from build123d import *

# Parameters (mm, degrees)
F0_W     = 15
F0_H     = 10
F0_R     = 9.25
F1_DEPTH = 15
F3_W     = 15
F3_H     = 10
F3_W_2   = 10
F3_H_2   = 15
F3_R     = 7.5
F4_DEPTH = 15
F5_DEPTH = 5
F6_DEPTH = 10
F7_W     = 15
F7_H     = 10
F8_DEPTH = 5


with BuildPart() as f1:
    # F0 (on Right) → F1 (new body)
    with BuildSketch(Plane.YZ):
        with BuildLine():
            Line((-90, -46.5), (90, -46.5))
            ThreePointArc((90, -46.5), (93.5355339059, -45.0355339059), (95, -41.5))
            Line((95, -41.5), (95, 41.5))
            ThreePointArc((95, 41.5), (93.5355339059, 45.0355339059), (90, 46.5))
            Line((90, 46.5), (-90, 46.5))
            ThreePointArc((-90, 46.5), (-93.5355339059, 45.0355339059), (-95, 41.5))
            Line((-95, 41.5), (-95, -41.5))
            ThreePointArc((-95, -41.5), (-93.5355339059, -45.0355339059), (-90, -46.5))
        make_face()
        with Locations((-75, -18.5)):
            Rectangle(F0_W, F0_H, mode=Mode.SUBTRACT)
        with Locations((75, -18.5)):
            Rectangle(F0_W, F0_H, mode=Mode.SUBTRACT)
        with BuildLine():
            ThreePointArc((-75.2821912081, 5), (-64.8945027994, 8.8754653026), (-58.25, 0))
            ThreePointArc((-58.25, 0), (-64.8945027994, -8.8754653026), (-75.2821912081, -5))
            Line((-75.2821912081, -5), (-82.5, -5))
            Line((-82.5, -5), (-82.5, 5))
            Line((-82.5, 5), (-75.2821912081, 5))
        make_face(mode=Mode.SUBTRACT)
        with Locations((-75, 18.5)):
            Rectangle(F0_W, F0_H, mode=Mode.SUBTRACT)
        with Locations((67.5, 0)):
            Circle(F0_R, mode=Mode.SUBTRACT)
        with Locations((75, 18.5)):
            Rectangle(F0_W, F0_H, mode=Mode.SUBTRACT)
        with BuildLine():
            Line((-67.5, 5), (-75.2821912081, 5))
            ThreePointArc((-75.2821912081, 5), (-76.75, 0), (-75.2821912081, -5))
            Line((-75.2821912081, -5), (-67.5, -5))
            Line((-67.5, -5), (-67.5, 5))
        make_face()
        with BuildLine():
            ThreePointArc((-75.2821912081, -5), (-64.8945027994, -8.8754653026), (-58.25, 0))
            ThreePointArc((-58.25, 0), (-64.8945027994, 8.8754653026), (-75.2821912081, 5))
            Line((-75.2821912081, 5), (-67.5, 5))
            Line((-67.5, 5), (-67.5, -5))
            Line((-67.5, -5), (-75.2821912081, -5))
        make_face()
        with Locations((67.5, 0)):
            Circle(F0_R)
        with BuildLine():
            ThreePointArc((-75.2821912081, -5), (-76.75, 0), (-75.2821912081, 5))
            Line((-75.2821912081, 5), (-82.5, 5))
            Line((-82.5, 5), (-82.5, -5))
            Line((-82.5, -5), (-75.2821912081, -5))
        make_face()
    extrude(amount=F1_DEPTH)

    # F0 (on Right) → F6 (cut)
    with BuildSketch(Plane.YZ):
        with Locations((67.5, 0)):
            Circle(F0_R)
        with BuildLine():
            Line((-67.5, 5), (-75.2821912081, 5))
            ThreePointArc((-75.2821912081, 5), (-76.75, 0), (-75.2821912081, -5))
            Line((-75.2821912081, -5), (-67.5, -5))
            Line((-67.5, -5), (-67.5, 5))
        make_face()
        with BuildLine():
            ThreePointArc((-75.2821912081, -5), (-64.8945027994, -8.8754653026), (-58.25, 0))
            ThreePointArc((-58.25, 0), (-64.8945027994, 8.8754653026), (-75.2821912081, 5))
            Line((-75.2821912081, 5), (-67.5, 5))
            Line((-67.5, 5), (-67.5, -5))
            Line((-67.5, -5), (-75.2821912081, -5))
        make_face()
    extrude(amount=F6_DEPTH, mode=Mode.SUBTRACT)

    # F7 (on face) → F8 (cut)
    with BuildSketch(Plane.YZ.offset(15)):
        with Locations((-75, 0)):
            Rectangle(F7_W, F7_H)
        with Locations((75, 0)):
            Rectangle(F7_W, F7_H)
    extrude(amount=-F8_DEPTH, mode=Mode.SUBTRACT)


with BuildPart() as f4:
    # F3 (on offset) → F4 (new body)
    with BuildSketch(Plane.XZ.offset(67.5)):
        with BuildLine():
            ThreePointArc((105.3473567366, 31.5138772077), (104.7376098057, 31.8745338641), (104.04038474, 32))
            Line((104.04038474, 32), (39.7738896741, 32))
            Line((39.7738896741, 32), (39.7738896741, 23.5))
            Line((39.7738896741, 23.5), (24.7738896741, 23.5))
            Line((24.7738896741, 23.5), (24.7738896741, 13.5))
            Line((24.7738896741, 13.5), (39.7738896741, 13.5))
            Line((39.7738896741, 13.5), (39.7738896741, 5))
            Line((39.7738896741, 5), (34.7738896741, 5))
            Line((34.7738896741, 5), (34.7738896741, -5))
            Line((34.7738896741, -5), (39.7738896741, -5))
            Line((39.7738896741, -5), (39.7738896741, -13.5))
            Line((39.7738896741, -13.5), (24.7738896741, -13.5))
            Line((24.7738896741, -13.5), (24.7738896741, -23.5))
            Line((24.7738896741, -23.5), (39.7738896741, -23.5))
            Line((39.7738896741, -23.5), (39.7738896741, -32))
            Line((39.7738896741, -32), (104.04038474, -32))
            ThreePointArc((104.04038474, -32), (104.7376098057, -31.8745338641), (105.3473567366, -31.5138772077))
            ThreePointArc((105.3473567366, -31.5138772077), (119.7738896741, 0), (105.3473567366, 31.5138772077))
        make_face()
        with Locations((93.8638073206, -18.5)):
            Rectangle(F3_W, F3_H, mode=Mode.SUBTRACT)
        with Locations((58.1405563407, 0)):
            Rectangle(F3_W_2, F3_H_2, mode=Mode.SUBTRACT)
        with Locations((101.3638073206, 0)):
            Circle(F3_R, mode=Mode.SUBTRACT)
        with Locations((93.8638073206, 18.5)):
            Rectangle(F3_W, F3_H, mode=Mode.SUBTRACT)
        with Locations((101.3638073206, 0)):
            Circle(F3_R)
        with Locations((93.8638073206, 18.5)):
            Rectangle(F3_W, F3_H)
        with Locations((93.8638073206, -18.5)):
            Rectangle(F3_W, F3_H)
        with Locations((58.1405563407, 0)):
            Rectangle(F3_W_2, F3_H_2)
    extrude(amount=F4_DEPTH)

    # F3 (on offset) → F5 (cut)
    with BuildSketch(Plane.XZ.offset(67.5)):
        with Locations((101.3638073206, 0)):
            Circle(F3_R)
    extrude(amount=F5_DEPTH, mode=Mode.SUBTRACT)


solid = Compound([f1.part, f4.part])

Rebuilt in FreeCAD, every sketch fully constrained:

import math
import FreeCAD as App
import Part
import Sketcher
from FreeCAD import Vector
Q = App.Units.Quantity


def add_polygon(sketch, points):
    """Adds a closed chain of lines whose ends are joined by coincident constraints."""
    first, n = sketch.GeometryCount, len(points)
    for a, b in zip(points, points[1:] + points[:1]):
        sketch.addGeometry(Part.LineSegment(App.Vector(*a, 0), App.Vector(*b, 0)), False)
    for i in range(n):
        sketch.addConstraint(Sketcher.Constraint("Coincident", first + i, 2, first + (i + 1) % n, 1))

doc = App.newDocument("Part")
body = doc.addObject("PartDesign::Body", "Body")

# Sketch on YZ plane
sketch1 = body.newObject("Sketcher::SketchObject", "Sketch")
sketch1.AttachmentSupport = (doc.getObject("YZ_Plane"), [""])
sketch1.MapMode = "FlatFace"
sketch1.addGeometry(Part.LineSegment(Vector(-90, -46, 0), Vector(90, -46, 0)), False)  # 0
sketch1.addGeometry(Part.ArcOfCircle(Part.Circle(Vector(90, -42, 0), Vector(0, 0, 1), 5), math.radians(-90), math.radians(0)), False)  # 1
sketch1.addGeometry(Part.LineSegment(Vector(95, -42, 0), Vector(95, 42, 0)), False)  # 2
sketch1.addGeometry(Part.ArcOfCircle(Part.Circle(Vector(90, 42, 0), Vector(0, 0, 1), 5), math.radians(0), math.radians(90)), False)  # 3
sketch1.addGeometry(Part.LineSegment(Vector(90, 46, 0), Vector(-90, 46, 0)), False)  # 4
sketch1.addGeometry(Part.ArcOfCircle(Part.Circle(Vector(-90, 42, 0), Vector(0, 0, 1), 5), math.radians(90), math.radians(180)), False)  # 5
sketch1.addGeometry(Part.LineSegment(Vector(-95, 42, 0), Vector(-95, -42, 0)), False)  # 6
sketch1.addGeometry(Part.ArcOfCircle(Part.Circle(Vector(-90, -42, 0), Vector(0, 0, 1), 5), math.radians(180), math.radians(270)), False)  # 7
add_polygon(sketch1, [(-68, -24), (-82, -24), (-82, -14), (-68, -14)])  # lines 8-11
add_polygon(sketch1, [(82, -24), (68, -24), (68, -14), (82, -14)])  # lines 12-15
add_polygon(sketch1, [(-68, 14), (-82, 14), (-82, 24), (-68, 24)])  # lines 16-19
add_polygon(sketch1, [(82, 14), (68, 14), (68, 24), (82, 24)])  # lines 20-23
sketch1.addConstraint([
    Sketcher.Constraint("Tangent", 0, 2, 1, 1),
    Sketcher.Constraint("Tangent", 1, 2, 2, 1),
    Sketcher.Constraint("Tangent", 2, 2, 3, 1),
    Sketcher.Constraint("Tangent", 3, 2, 4, 1),
    Sketcher.Constraint("Tangent", 4, 2, 5, 1),
    Sketcher.Constraint("Tangent", 5, 2, 6, 1),
    Sketcher.Constraint("Tangent", 6, 2, 7, 1),
    Sketcher.Constraint("Tangent", 7, 2, 0, 1),
    Sketcher.Constraint("Horizontal", 0),
    Sketcher.Constraint("Vertical", 2),
    Sketcher.Constraint("Horizontal", 4),
    Sketcher.Constraint("Vertical", 6),
    Sketcher.Constraint("Horizontal", 8),
    Sketcher.Constraint("Vertical", 9),
    Sketcher.Constraint("Horizontal", 10),
    Sketcher.Constraint("Vertical", 11),
    Sketcher.Constraint("Horizontal", 12),
    Sketcher.Constraint("Vertical", 13),
    Sketcher.Constraint("Horizontal", 14),
    Sketcher.Constraint("Vertical", 15),
    Sketcher.Constraint("Horizontal", 16),
    Sketcher.Constraint("Vertical", 17),
    Sketcher.Constraint("Horizontal", 18),
    Sketcher.Constraint("Vertical", 19),
    Sketcher.Constraint("Horizontal", 20),
    Sketcher.Constraint("Vertical", 21),
    Sketcher.Constraint("Horizontal", 22),
    Sketcher.Constraint("Vertical", 23),
    Sketcher.Constraint("Equal", 1, 3),
    Sketcher.Constraint("Equal", 3, 5),
    Sketcher.Constraint("Equal", 5, 7),
    Sketcher.Constraint("Symmetric", 1, 3, 5, 3, -1, 1),
    Sketcher.Constraint("Symmetric", 14, 2, 16, 2, -1, 1),
    Sketcher.Constraint("Symmetric", 12, 2, 18, 2, -1, 1),
    Sketcher.Constraint("Symmetric", 10, 2, 20, 2, -1, 1),
    Sketcher.Constraint("Symmetric", 8, 2, 22, 2, -1, 1),
    Sketcher.Constraint("Symmetric", 11, 2, 12, 2, -2),
    Sketcher.Constraint("Symmetric", 9, 2, 14, 2, -2),
    Sketcher.Constraint("Radius", 1, Q("5 mm")),
    Sketcher.Constraint("DistanceX", 0, 1, 0, 2, Q("180 mm")),
    Sketcher.Constraint("DistanceX", 8, 2, 8, 1, Q("15 mm")),
    Sketcher.Constraint("DistanceY", 2, 1, 2, 2, Q("83 mm")),
    Sketcher.Constraint("DistanceY", 9, 1, 9, 2, Q("10 mm")),
    Sketcher.Constraint("DistanceY", 7, 3, 8, 2, Q("18 mm")),
    Sketcher.Constraint("DistanceX", 8, 2, -1, 1, Q("82.5 mm")),
])
pad1 = body.newObject("PartDesign::Pad", "Pad")
pad1.Profile = sketch1
pad1.Length = 15

# Sketch on YZ plane
sketch2 = body.newObject("Sketcher::SketchObject", "Sketch001")
sketch2.AttachmentSupport = (doc.getObject("YZ_Plane"), [""])
sketch2.MapMode = "FlatFace"
sketch2.addGeometry([
    Part.Circle(Vector(68, 0, 0), Vector(0, 0, 1), 9),
    Part.ArcOfCircle(Part.Circle(Vector(-68, 0, 0), Vector(0, 0, 1), 9), math.radians(147), math.radians(213)),
    Part.ArcOfCircle(Part.Circle(Vector(-68, 0, 0), Vector(0, 0, 1), 9), math.radians(-147), math.radians(0)),
    Part.ArcOfCircle(Part.Circle(Vector(-68, 0, 0), Vector(0, 0, 1), 9), math.radians(0), math.radians(147)),
], False)
sketch2.addConstraint([
    Sketcher.Constraint("Tangent", 1, 2, 2, 1),
    Sketcher.Constraint("Tangent", 2, 2, 3, 1),
    Sketcher.Constraint("Tangent", 3, 2, 1, 1),
    Sketcher.Constraint("Equal", 0, 1),
    Sketcher.Constraint("Symmetric", 0, 3, 1, 3, -1, 1),
    Sketcher.Constraint("Symmetric", 1, 2, 3, 2, -1),
    Sketcher.Constraint("PointOnObject", 2, 2, -1),
    Sketcher.Constraint("Diameter", 0, Q("18.5 mm")),
    Sketcher.Constraint("DistanceY", 1, 2, -1, 1, Q("5 mm")),
    Sketcher.Constraint("DistanceX", 1, 3, 0, 3, Q("135 mm")),
])
pocket1 = body.newObject("PartDesign::Pocket", "Pocket")
pocket1.Profile = sketch2
pocket1.Length = 10
pocket1.Reversed = True

# Sketch on YZ plane
sketch3 = body.newObject("Sketcher::SketchObject", "Sketch002")
sketch3.AttachmentSupport = (doc.getObject("YZ_Plane"), [""])
sketch3.MapMode = "FlatFace"
sketch3.AttachmentOffset = App.Placement(Vector(0, 0, 15), App.Rotation())
add_polygon(sketch3, [(-82, 5), (-82, -5), (-68, -5), (-68, 5)])  # lines 0-3
add_polygon(sketch3, [(68, 5), (68, -5), (82, -5), (82, 5)])  # lines 4-7
sketch3.addConstraint([
    Sketcher.Constraint("Vertical", 0),
    Sketcher.Constraint("Horizontal", 1),
    Sketcher.Constraint("Vertical", 2),
    Sketcher.Constraint("Horizontal", 3),
    Sketcher.Constraint("Vertical", 4),
    Sketcher.Constraint("Horizontal", 5),
    Sketcher.Constraint("Vertical", 6),
    Sketcher.Constraint("Horizontal", 7),
    Sketcher.Constraint("Symmetric", 2, 2, 4, 2, -1, 1),
    Sketcher.Constraint("Symmetric", 0, 2, 6, 2, -1, 1),
    Sketcher.Constraint("Horizontal", 1, 2, 4, 2),
    Sketcher.Constraint("DistanceX", 1, 1, 1, 2, Q("15 mm")),
    Sketcher.Constraint("DistanceY", 0, 2, 0, 1, Q("10 mm")),
    Sketcher.Constraint("DistanceX", 1, 2, 4, 2, Q("135 mm")),
])
pocket2 = body.newObject("PartDesign::Pocket", "Pocket001")
pocket2.Profile = sketch3
pocket2.Length = 5
body2 = doc.addObject("PartDesign::Body", "Body001")

# Sketch on XZ plane
sketch4 = body2.newObject("Sketcher::SketchObject", "Sketch003")
sketch4.AttachmentSupport = (doc.getObject("XZ_Plane001"), [""])
sketch4.MapMode = "FlatFace"
sketch4.AttachmentOffset = App.Placement(Vector(0, 0, 67.5), App.Rotation())
sketch4.addGeometry([
    Part.ArcOfCircle(Part.Circle(Vector(104, 30, 0), Vector(0, 0, 1), 2), math.radians(49), math.radians(90)),  # 0
    Part.LineSegment(Vector(104, 32, 0), Vector(39.8, 32, 0)),  # 1
    Part.LineSegment(Vector(39.8, 32, 0), Vector(39.8, 23.5, 0)),  # 2
    Part.LineSegment(Vector(39.8, 23.5, 0), Vector(24.8, 23.5, 0)),  # 3
    Part.LineSegment(Vector(24.8, 23.5, 0), Vector(24.8, 13.5, 0)),  # 4
    Part.LineSegment(Vector(24.8, 13.5, 0), Vector(39.8, 13.5, 0)),  # 5
    Part.LineSegment(Vector(39.8, 13.5, 0), Vector(39.8, 5, 0)),  # 6
    Part.LineSegment(Vector(39.8, 5, 0), Vector(34.8, 5, 0)),  # 7
    Part.LineSegment(Vector(34.8, 5, 0), Vector(34.8, -5, 0)),  # 8
    Part.LineSegment(Vector(34.8, -5, 0), Vector(39.8, -5, 0)),  # 9
    Part.LineSegment(Vector(39.8, -5, 0), Vector(39.8, -13.5, 0)),  # 10
    Part.LineSegment(Vector(39.8, -13.5, 0), Vector(24.8, -13.5, 0)),  # 11
    Part.LineSegment(Vector(24.8, -13.5, 0), Vector(24.8, -23.5, 0)),  # 12
    Part.LineSegment(Vector(24.8, -23.5, 0), Vector(39.8, -23.5, 0)),  # 13
    Part.LineSegment(Vector(39.8, -23.5, 0), Vector(39.8, -32, 0)),  # 14
    Part.LineSegment(Vector(39.8, -32, 0), Vector(104, -32, 0)),  # 15
    Part.ArcOfCircle(Part.Circle(Vector(104, -30, 0), Vector(0, 0, 1), 2), math.radians(-90), math.radians(-49)),  # 16
    Part.ArcOfCircle(Part.Circle(Vector(78.1, 0, 0), Vector(0, 0, 1), 41.6), math.radians(-49), math.radians(49)),  # 17
], False)
sketch4.addConstraint([
    Sketcher.Constraint("Tangent", 0, 2, 1, 1),
    Sketcher.Constraint("Coincident", 1, 2, 2, 1),
    Sketcher.Constraint("Coincident", 2, 2, 3, 1),
    Sketcher.Constraint("Coincident", 3, 2, 4, 1),
    Sketcher.Constraint("Coincident", 4, 2, 5, 1),
    Sketcher.Constraint("Coincident", 5, 2, 6, 1),
    Sketcher.Constraint("Coincident", 6, 2, 7, 1),
    Sketcher.Constraint("Coincident", 7, 2, 8, 1),
    Sketcher.Constraint("Coincident", 8, 2, 9, 1),
    Sketcher.Constraint("Coincident", 9, 2, 10, 1),
    Sketcher.Constraint("Coincident", 10, 2, 11, 1),
    Sketcher.Constraint("Coincident", 11, 2, 12, 1),
    Sketcher.Constraint("Coincident", 12, 2, 13, 1),
    Sketcher.Constraint("Coincident", 13, 2, 14, 1),
    Sketcher.Constraint("Coincident", 14, 2, 15, 1),
    Sketcher.Constraint("Tangent", 15, 2, 16, 1),
    Sketcher.Constraint("Tangent", 16, 2, 17, 1),
    Sketcher.Constraint("Tangent", 17, 2, 0, 1),
    Sketcher.Constraint("Horizontal", 1),
    Sketcher.Constraint("Vertical", 2),
    Sketcher.Constraint("Horizontal", 3),
    Sketcher.Constraint("Vertical", 4),
    Sketcher.Constraint("Horizontal", 5),
    Sketcher.Constraint("Vertical", 6),
    Sketcher.Constraint("Horizontal", 7),
    Sketcher.Constraint("Vertical", 8),
    Sketcher.Constraint("Horizontal", 9),
    Sketcher.Constraint("Vertical", 10),
    Sketcher.Constraint("Horizontal", 11),
    Sketcher.Constraint("Vertical", 12),
    Sketcher.Constraint("Horizontal", 13),
    Sketcher.Constraint("Vertical", 14),
    Sketcher.Constraint("Horizontal", 15),
    Sketcher.Constraint("Equal", 0, 16),
    Sketcher.Constraint("Symmetric", 0, 3, 16, 3, -1),
    Sketcher.Constraint("Symmetric", 6, 2, 9, 2, -1),
    Sketcher.Constraint("Symmetric", 4, 2, 11, 2, -1),
    Sketcher.Constraint("Symmetric", 2, 2, 13, 2, -1),
    Sketcher.Constraint("Vertical", 2, 2, 5, 2),
    Sketcher.Constraint("Equal", 2, 6),
    Sketcher.Constraint("Equal", 4, 8),
    Sketcher.Constraint("Radius", 0, Q("2 mm")),
    Sketcher.Constraint("DistanceX", 3, 2, 3, 1, Q("15 mm")),
    Sketcher.Constraint("DistanceX", 7, 2, 7, 1, Q("5 mm")),
    Sketcher.Constraint("DistanceY", 4, 2, 4, 1, Q("10 mm")),
    Sketcher.Constraint("DistanceY", 2, 2, 2, 1, Q("8.5 mm")),
    Sketcher.Constraint("Radius", 17, Q("41.633333 mm")),
    Sketcher.Constraint("DistanceX", 1, 2, 1, 1, Q("64.266495 mm")),
    Sketcher.Constraint("DistanceX", -1, 1, 1, 2, Q("39.77389 mm")),
])
pad2 = body2.newObject("PartDesign::Pad", "Pad001")
pad2.Profile = sketch4
pad2.Length = 15

# Sketch on XZ plane
sketch5 = body2.newObject("Sketcher::SketchObject", "Sketch004")
sketch5.AttachmentSupport = (doc.getObject("XZ_Plane001"), [""])
sketch5.MapMode = "FlatFace"
sketch5.AttachmentOffset = App.Placement(Vector(0, 0, 67.5), App.Rotation())
sketch5.addGeometry(Part.Circle(Vector(101, 0, 0), Vector(0, 0, 1), 8), False)
sketch5.addConstraint([
    Sketcher.Constraint("PointOnObject", 0, 3, -1),
    Sketcher.Constraint("Diameter", 0, Q("15 mm")),
    Sketcher.Constraint("DistanceX", -1, 1, 0, 3, Q("101.363807 mm")),
])
pocket3 = body2.newObject("PartDesign::Pocket", "Pocket002")
pocket3.Profile = sketch5
pocket3.Length = 5
pocket3.Reversed = True

doc.recompute()
